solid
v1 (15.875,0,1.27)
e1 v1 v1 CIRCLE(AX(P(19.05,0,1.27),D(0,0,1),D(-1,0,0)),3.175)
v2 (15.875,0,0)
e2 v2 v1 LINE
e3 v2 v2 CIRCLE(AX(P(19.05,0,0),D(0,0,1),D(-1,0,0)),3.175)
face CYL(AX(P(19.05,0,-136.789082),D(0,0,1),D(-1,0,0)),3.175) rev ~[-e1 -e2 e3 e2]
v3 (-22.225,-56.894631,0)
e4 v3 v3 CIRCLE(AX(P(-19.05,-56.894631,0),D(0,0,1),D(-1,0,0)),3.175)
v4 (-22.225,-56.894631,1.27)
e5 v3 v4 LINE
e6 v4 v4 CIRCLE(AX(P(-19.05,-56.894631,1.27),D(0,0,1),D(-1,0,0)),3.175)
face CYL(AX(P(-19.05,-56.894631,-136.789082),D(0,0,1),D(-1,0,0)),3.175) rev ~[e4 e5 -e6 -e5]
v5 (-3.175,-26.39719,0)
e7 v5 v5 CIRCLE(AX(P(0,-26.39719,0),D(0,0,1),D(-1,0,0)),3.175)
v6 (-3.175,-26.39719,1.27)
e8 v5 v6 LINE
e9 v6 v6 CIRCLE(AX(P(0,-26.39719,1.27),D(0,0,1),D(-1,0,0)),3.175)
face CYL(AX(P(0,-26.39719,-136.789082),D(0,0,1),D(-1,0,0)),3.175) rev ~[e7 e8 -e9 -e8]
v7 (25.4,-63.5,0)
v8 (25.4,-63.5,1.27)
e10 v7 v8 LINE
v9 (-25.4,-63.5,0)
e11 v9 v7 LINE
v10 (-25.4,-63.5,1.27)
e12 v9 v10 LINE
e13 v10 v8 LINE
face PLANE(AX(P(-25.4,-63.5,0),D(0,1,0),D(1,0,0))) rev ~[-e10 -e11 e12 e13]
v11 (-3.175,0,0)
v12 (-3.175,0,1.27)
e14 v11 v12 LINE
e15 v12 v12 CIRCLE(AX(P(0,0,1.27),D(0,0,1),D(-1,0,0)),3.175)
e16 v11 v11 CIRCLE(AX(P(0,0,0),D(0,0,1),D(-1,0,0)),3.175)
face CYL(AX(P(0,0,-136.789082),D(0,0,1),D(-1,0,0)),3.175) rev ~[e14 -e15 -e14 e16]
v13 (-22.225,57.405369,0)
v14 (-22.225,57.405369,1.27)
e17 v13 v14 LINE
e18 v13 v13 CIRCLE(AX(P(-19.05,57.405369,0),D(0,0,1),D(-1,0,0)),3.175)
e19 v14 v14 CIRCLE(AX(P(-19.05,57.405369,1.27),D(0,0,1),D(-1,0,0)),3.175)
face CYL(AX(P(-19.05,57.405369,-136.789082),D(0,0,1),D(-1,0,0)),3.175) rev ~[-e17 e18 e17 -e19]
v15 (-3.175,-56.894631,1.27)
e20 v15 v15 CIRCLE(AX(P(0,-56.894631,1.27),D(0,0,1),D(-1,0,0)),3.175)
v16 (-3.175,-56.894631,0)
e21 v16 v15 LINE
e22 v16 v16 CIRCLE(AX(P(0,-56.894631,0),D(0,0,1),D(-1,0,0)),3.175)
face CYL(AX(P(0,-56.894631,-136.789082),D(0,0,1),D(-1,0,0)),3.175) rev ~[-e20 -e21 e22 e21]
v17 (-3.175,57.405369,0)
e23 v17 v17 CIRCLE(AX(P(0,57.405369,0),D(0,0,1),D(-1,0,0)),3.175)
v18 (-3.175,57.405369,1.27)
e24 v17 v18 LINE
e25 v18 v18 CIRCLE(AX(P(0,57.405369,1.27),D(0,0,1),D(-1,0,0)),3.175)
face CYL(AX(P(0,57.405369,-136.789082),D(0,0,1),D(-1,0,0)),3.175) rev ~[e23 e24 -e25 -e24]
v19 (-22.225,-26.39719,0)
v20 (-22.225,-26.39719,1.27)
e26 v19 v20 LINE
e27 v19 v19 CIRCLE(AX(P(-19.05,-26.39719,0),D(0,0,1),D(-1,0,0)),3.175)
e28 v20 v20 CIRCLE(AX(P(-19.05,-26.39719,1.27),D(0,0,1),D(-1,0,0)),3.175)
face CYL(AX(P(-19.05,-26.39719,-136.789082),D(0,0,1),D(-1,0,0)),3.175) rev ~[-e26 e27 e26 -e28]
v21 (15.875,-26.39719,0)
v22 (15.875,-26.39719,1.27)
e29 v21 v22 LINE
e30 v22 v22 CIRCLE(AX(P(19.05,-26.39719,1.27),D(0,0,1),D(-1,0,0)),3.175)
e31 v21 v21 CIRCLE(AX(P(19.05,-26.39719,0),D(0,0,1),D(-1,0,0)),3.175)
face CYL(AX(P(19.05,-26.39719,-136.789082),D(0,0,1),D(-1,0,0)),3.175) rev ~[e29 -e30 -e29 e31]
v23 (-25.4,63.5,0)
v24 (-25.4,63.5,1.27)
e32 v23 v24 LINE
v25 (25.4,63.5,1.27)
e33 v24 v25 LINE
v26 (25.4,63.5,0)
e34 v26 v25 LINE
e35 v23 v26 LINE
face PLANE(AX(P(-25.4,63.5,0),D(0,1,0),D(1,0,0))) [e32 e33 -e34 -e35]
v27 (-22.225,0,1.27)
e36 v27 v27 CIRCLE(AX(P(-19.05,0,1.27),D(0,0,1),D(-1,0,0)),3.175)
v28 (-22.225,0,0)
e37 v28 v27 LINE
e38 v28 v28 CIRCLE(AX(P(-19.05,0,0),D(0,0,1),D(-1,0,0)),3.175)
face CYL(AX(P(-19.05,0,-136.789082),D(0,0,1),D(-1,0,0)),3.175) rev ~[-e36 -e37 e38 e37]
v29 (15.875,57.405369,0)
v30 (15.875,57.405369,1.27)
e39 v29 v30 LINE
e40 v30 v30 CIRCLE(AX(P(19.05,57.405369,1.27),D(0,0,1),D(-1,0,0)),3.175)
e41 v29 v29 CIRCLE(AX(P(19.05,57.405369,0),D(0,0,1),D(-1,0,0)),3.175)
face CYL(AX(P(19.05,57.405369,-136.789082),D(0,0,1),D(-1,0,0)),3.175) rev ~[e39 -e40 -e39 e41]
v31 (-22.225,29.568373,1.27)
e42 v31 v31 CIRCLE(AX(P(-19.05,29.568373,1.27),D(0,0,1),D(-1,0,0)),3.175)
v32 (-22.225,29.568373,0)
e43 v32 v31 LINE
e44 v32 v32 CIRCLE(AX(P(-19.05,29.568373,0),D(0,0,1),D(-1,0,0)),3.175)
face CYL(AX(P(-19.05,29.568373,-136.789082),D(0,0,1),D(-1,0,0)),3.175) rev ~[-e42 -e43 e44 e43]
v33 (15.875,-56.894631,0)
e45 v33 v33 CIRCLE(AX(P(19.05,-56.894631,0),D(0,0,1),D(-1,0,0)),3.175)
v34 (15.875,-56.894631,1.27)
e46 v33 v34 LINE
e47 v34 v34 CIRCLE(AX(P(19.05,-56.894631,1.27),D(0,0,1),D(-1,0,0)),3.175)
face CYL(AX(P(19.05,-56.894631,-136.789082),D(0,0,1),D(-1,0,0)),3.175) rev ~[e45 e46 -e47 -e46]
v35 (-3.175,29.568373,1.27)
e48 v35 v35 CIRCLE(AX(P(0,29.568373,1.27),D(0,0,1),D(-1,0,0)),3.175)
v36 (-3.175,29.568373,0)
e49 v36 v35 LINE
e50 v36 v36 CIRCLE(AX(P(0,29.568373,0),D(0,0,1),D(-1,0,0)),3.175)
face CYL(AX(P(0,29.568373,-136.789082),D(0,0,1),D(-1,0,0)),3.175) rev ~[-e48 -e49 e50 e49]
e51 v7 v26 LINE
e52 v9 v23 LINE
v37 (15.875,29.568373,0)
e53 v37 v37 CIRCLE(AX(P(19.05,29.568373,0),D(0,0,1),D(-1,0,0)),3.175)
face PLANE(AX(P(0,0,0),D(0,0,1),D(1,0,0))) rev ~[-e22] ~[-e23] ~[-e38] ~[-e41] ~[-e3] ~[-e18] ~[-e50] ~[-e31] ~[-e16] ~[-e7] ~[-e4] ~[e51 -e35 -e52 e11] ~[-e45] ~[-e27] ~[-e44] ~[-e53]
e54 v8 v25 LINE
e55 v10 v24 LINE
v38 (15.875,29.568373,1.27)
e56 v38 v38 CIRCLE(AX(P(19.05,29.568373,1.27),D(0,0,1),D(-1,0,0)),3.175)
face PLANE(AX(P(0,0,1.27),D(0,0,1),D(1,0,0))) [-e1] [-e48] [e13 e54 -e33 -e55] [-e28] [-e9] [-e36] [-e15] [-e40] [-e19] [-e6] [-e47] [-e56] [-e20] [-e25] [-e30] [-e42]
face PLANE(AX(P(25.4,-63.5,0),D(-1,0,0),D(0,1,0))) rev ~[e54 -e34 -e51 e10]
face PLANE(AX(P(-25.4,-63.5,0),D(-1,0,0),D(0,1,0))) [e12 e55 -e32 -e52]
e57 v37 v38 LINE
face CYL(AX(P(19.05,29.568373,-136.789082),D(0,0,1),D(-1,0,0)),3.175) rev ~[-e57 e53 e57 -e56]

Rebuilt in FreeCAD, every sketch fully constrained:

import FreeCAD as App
import Part
import Sketcher
from FreeCAD import Vector
Q = App.Units.Quantity


def add_polygon(sketch, points):
    """Adds a closed chain of lines whose ends are joined by coincident constraints."""
    first, n = sketch.GeometryCount, len(points)
    for a, b in zip(points, points[1:] + points[:1]):
        sketch.addGeometry(Part.LineSegment(App.Vector(*a, 0), App.Vector(*b, 0)), False)
    for i in range(n):
        sketch.addConstraint(Sketcher.Constraint("Coincident", first + i, 2, first + (i + 1) % n, 1))

doc = App.newDocument("Part")
params = doc.addObject("Spreadsheet::Sheet", "Params")
for row, (alias, value) in enumerate([
    ("sketch1_width", "2 in"),
    ("sketch1_height", "5 in"),
    ("pad1_length", "0.05 in"),
    ("sketch2_diameter", "0.25 in"),
    ("hole_diameter", "0.25 in"),
    ("sketch3_diameter", "0.25 in"),
    ("hole2_diameter", "0.25 in"),
], start=1):
    params.set(f"A{row}", alias)
    params.set(f"B{row}", "=" + value)
    params.setAlias(f"B{row}", alias)

body = doc.addObject("PartDesign::Body", "Body")

sketch1 = body.newObject("Sketcher::SketchObject", "Sketch")
sketch1.AttachmentSupport = (doc.getObject("XY_Plane"), [""])
sketch1.MapMode = "FlatFace"
add_polygon(sketch1, [(-25, 64), (-25, -64), (25, -64), (25, 64)])
sketch1.addConstraint([
    Sketcher.Constraint("Vertical", 0),
    Sketcher.Constraint("Horizontal", 1),
    Sketcher.Constraint("Vertical", 2),
    Sketcher.Constraint("Horizontal", 3),
    Sketcher.Constraint("Symmetric", 0, 2, 2, 2, -1, 1),
    Sketcher.Constraint("DistanceX", 1, 1, 1, 2, Q("2 in")),
    Sketcher.Constraint("DistanceY", 0, 2, 0, 1, Q("5 in")),
])
sketch1.setExpression("Constraints[9]", "Params.sketch1_width")
sketch1.setExpression("Constraints[10]", "Params.sketch1_height")
pad1 = body.newObject("PartDesign::Pad", "Pad")
pad1.Profile = sketch1
pad1.setExpression("Length", "Params.pad1_length")

sketch2 = body.newObject("Sketcher::SketchObject", "Sketch001")
sketch2.AttachmentSupport = (doc.getObject("XY_Plane"), [""])
sketch2.MapMode = "FlatFace"
sketch2.addGeometry([
    Part.Circle(Vector(-19.1, 57.4, 0), Vector(0, 0, 1), 3.2),
    Part.Circle(Vector(0, 57.4, 0), Vector(0, 0, 1), 3.2),
    Part.Circle(Vector(19.1, 57.4, 0), Vector(0, 0, 1), 3.2),
    Part.Circle(Vector(19.1, 29.6, 0), Vector(0, 0, 1), 3.2),
    Part.Circle(Vector(0, 29.6, 0), Vector(0, 0, 1), 3.2),
    Part.Circle(Vector(-19.1, 29.6, 0), Vector(0, 0, 1), 3.2),
    Part.Circle(Vector(-19.1, 0, 0), Vector(0, 0, 1), 3.2),
    Part.Circle(Vector(19.1, 0, 0), Vector(0, 0, 1), 3.2),
    Part.Circle(Vector(19.1, -26.4, 0), Vector(0, 0, 1), 3.2),
    Part.Circle(Vector(0, -56.9, 0), Vector(0, 0, 1), 3.2),
    Part.Circle(Vector(0, -26.4, 0), Vector(0, 0, 1), 3.2),
    Part.Circle(Vector(-19.1, -26.4, 0), Vector(0, 0, 1), 3.2),
    Part.Circle(Vector(-19.1, -56.9, 0), Vector(0, 0, 1), 3.2),
    Part.Circle(Vector(19.1, -56.9, 0), Vector(0, 0, 1), 3.2),
], False)
sketch2.addConstraint([
    Sketcher.Constraint("Equal", 0, 1),
    Sketcher.Constraint("Equal", 1, 2),
    Sketcher.Constraint("Equal", 2, 3),
    Sketcher.Constraint("Equal", 3, 4),
    Sketcher.Constraint("Equal", 4, 5),
    Sketcher.Constraint("Equal", 5, 6),
    Sketcher.Constraint("Equal", 6, 7),
    Sketcher.Constraint("Equal", 7, 8),
    Sketcher.Constraint("Equal", 8, 9),
    Sketcher.Constraint("Equal", 9, 10),
    Sketcher.Constraint("Equal", 10, 11),
    Sketcher.Constraint("Equal", 11, 12),
    Sketcher.Constraint("Equal", 12, 13),
    Sketcher.Constraint("Symmetric", 6, 3, 7, 3, -1, 1),
    Sketcher.Constraint("Symmetric", 0, 3, 2, 3, -2),
    Sketcher.Constraint("Symmetric", 3, 3, 5, 3, -2),
    Sketcher.Constraint("Symmetric", 8, 3, 11, 3, -2),
    Sketcher.Constraint("Symmetric", 12, 3, 13, 3, -2),
    Sketcher.Constraint("PointOnObject", 1, 3, -2),
    Sketcher.Constraint("PointOnObject", 4, 3, -2),
    Sketcher.Constraint("PointOnObject", 6, 3, -1),
    Sketcher.Constraint("PointOnObject", 9, 3, -2),
    Sketcher.Constraint("PointOnObject", 10, 3, -2),
    Sketcher.Constraint("Horizontal", 0, 3, 1, 3),
    Sketcher.Constraint("Horizontal", 3, 3, 4, 3),
    Sketcher.Constraint("Horizontal", 8, 3, 10, 3),
    Sketcher.Constraint("Horizontal", 9, 3, 12, 3),
    Sketcher.Constraint("Vertical", 2, 3, 3, 3),
    Sketcher.Constraint("Vertical", 5, 3, 6, 3),
    Sketcher.Constraint("Vertical", 7, 3, 8, 3),
    Sketcher.Constraint("Vertical", 11, 3, 12, 3),
    Sketcher.Constraint("Diameter", 0, Q("0.25 in")),
    Sketcher.Constraint("DistanceX", 0, 3, 2, 3, Q("1.5 in")),
    Sketcher.Constraint("DistanceY", -1, 1, 0, 3, 57.405369),
    Sketcher.Constraint("DistanceY", 8, 3, -1, 1, 26.39719),
    Sketcher.Constraint("DistanceY", 9, 3, -1, 1, 56.894631),
    Sketcher.Constraint("DistanceY", -1, 1, 3, 3, 29.568373),
])
sketch2.setExpression("Constraints[31]", "Params.sketch2_diameter")
doc.recompute()
hole = body.newObject("PartDesign::Hole", "Hole")
hole.Profile = sketch2
hole.ThreadType = "None"
hole.setExpression("Diameter", "Params.hole_diameter")
hole.DepthType = "ThroughAll"
hole.Reversed = True

sketch3 = body.newObject("Sketcher::SketchObject", "Sketch002")
sketch3.AttachmentSupport = (doc.getObject("XY_Plane"), [""])
sketch3.MapMode = "FlatFace"
sketch3.addGeometry(Part.Circle(Vector(0, 0, 0), Vector(0, 0, 1), 3.2), False)
sketch3.addConstraint([
    Sketcher.Constraint("Coincident", 0, 3, -1, 1),
    Sketcher.Constraint("Diameter", 0, Q("0.25 in")),
])
sketch3.setExpression("Constraints[1]", "Params.sketch3_diameter")
doc.recompute()
hole2 = body.newObject("PartDesign::Hole", "Hole001")
hole2.Profile = sketch3
hole2.ThreadType = "None"
hole2.setExpression("Diameter", "Params.hole2_diameter")
hole2.DepthType = "ThroughAll"
hole2.Reversed = True

doc.recompute()
